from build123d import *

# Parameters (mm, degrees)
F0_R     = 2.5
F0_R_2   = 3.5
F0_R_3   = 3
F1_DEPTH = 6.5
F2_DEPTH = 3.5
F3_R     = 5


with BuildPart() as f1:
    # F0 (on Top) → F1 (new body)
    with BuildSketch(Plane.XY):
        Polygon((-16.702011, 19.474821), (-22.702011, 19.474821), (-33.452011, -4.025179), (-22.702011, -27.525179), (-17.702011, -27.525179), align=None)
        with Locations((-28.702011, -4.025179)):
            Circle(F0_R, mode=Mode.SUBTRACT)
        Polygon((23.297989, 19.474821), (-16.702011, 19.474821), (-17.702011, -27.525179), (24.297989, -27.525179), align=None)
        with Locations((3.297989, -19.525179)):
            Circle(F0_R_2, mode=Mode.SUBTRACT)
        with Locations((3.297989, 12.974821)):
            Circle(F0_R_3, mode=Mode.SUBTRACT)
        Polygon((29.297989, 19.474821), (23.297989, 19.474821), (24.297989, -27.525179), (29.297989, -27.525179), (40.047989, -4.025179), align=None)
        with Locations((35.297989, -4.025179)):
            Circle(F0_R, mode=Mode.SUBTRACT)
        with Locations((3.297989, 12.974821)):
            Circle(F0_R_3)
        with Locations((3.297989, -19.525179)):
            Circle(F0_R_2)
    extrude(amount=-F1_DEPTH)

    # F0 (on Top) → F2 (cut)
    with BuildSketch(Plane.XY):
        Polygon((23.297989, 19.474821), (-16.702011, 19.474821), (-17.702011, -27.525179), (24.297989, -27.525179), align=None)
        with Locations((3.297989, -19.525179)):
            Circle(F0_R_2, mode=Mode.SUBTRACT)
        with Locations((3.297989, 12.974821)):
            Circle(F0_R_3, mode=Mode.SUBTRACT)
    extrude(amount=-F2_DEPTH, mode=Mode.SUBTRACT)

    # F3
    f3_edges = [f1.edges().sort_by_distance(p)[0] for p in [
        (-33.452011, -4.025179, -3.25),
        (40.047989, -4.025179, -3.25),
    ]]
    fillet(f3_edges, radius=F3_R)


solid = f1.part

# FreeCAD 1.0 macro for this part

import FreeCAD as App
import Part
import Sketcher

V = App.Vector
Q = App.Units.Quantity


def edges_at(feature, points):
    """Names of the edges that pass closest to the given points."""
    edges = feature.Shape.Edges
    near = lambda p: min(range(len(edges)), key=lambda i: edges[i].distToShape(Part.Vertex(*p))[0])
    return sorted({f"Edge{near(p) + 1}" for p in points})


def add_polygon(sketch, points):
    """Adds a closed chain of lines whose ends are joined by coincident constraints."""
    first, n = sketch.GeometryCount, len(points)
    for a, b in zip(points, points[1:] + points[:1]):
        sketch.addGeometry(Part.LineSegment(App.Vector(*a, 0), App.Vector(*b, 0)), False)
    for i in range(n):
        sketch.addConstraint(Sketcher.Constraint("Coincident", first + i, 2, first + (i + 1) % n, 1))

doc = App.newDocument("Part")
body = doc.addObject("PartDesign::Body", "Body")

# Sketch on XY plane
sketch1 = doc.addObject("Sketcher::SketchObject", "Sketch")
body.addObject(sketch1)
sketch1.AttachmentSupport = (doc.XY_Plane, [""])
sketch1.MapMode = "FlatFace"
add_polygon(sketch1, [(-22.702011, 19.474821), (-33.452011, -4.025179), (-22.702011, -27.525179), (29.297989, -27.525179), (40.047989, -4.025179), (29.297989, 19.474821)])  # lines 0-5
sketch1.addGeometry(Part.Circle(V(-28.702011, -4.025179, 0), V(0, 0, 1), 2.5), False)  # 6
sketch1.addGeometry(Part.Circle(V(35.297989, -4.025179, 0), V(0, 0, 1), 2.5), False)  # 7
sketch1.addConstraint([
    Sketcher.Constraint("Horizontal", 2),
    Sketcher.Constraint("Horizontal", 5),
    Sketcher.Constraint("Equal", 6, 7),
    Sketcher.Constraint("Parallel", 0, 3),
    Sketcher.Constraint("Parallel", 1, 4),
    Sketcher.Constraint("Horizontal", 6, 3, 7, 3),
    Sketcher.Constraint("Horizontal", 7, 3, 0, 2),
    Sketcher.Constraint("Horizontal", 0, 2, 3, 2),
    Sketcher.Constraint("Vertical", 2, 2, 4, 2),
    Sketcher.Constraint("Vertical", 1, 2, 5, 2),
    Sketcher.Constraint("Diameter", 6, Q("5 mm")),
    Sketcher.Constraint("DistanceX", 2, 1, 2, 2, Q("52 mm")),
    Sketcher.Constraint("DistanceX", 6, 3, 7, 3, Q("64 mm")),
    Sketcher.Constraint("DistanceX", 6, 3, 1, 2, Q("6 mm")),
    Sketcher.Constraint("DistanceY", 2, 2, 4, 2, Q("47 mm")),
    Sketcher.Constraint("DistanceX", 0, 2, 3, 2, Q("73.5 mm")),
    Sketcher.Constraint("DistanceX", 6, 3, -1, 1, Q("28.702011 mm")),
    Sketcher.Constraint("DistanceY", 6, 3, -1, 1, Q("4.025179 mm")),
])
pad1 = doc.addObject("PartDesign::Pad", "Pad")
body.addObject(pad1)
pad1.Profile = sketch1
pad1.Length = 6.5
pad1.Reversed = True

# Sketch on XY plane
sketch2 = doc.addObject("Sketcher::SketchObject", "Sketch001")
body.addObject(sketch2)
sketch2.AttachmentSupport = (doc.XY_Plane, [""])
sketch2.MapMode = "FlatFace"
add_polygon(sketch2, [(23.297989, 19.474821), (-16.702011, 19.474821), (-17.702011, -27.525179), (24.297989, -27.525179)])  # lines 0-3
sketch2.addGeometry(Part.Circle(V(3.297989, -19.525179, 0), V(0, 0, 1), 3.5), False)  # 4
sketch2.addGeometry(Part.Circle(V(3.297989, 12.974821, 0), V(0, 0, 1), 3), False)  # 5
sketch2.addConstraint([
    Sketcher.Constraint("Horizontal", 0),
    Sketcher.Constraint("Horizontal", 2),
    Sketcher.Constraint("Vertical", 4, 3, 5, 3),
    Sketcher.Constraint("Equal", 1, 3),
    Sketcher.Constraint("Diameter", 4, Q("7 mm")),
    Sketcher.Constraint("Diameter", 5, Q("6 mm")),
    Sketcher.Constraint("DistanceX", 0, 2, 0, 1, Q("40 mm")),
    Sketcher.Constraint("DistanceX", 2, 1, 2, 2, Q("42 mm")),
    Sketcher.Constraint("DistanceX", 0, 2, 5, 3, Q("20 mm")),
    Sketcher.Constraint("DistanceY", 4, 3, 0, 2, Q("39 mm")),
    Sketcher.Constraint("DistanceY", 1, 2, 4, 3, Q("8 mm")),
    Sketcher.Constraint("DistanceY", 4, 3, 5, 3, Q("32.5 mm")),
    Sketcher.Constraint("DistanceX", -1, 1, 4, 3, Q("3.297989 mm")),
    Sketcher.Constraint("DistanceY", 4, 3, -1, 1, Q("19.525179 mm")),
])
pocket1 = doc.addObject("PartDesign::Pocket", "Pocket")
body.addObject(pocket1)
pocket1.Profile = sketch2
pocket1.Length = 3.5
doc.recompute()

fillet = doc.addObject("PartDesign::Fillet", "Fillet")
body.addObject(fillet)
fillet.Base = (pocket1, edges_at(pocket1, [(-33.452, -4.025, -3.25), (40.048, -4.025, -3.25)]))
fillet.Radius = 5

doc.recompute()
